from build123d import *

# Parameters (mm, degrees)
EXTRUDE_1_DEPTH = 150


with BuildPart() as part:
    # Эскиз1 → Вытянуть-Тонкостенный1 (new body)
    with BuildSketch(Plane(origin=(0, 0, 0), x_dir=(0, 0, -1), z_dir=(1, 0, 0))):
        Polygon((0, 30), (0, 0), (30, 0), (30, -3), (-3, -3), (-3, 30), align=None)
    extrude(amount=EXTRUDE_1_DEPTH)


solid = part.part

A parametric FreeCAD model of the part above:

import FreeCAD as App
import Part
import Sketcher
from FreeCAD import Vector
Q = App.Units.Quantity


def add_polygon(sketch, points):
    """Adds a closed chain of lines whose ends are joined by coincident constraints."""
    first, n = sketch.GeometryCount, len(points)
    for a, b in zip(points, points[1:] + points[:1]):
        sketch.addGeometry(Part.LineSegment(App.Vector(*a, 0), App.Vector(*b, 0)), False)
    for i in range(n):
        sketch.addConstraint(Sketcher.Constraint("Coincident", first + i, 2, first + (i + 1) % n, 1))

doc = App.newDocument("Part")
body = doc.addObject("PartDesign::Body", "Body")

sketch1 = body.newObject("Sketcher::SketchObject", "Sketch")
sketch1.AttachmentSupport = (doc.getObject("YZ_Plane"), [""])
sketch1.MapMode = "FlatFace"
add_polygon(sketch1, [(0, 0), (30, 0), (30, 3), (-3, 3), (-3, -30), (0, -30)])
sketch1.addConstraint(Sketcher.Constraint("Horizontal", 0))
sketch1.addConstraint(Sketcher.Constraint("Vertical", 1))
sketch1.addConstraint(Sketcher.Constraint("Horizontal", 2))
sketch1.addConstraint(Sketcher.Constraint("Vertical", 3))
sketch1.addConstraint(Sketcher.Constraint("Horizontal", 4))
sketch1.addConstraint(Sketcher.Constraint("Vertical", 5))
sketch1.addConstraint(Sketcher.Constraint("Coincident", 5, 2, -1, 1))
sketch1.addConstraint(Sketcher.Constraint("Equal", 4, 1))
sketch1.addConstraint(Sketcher.Constraint("Equal", 2, 3))
sketch1.addConstraint(Sketcher.Constraint("DistanceX", 0, 1, 0, 2, Q("30 mm")))
sketch1.addConstraint(Sketcher.Constraint("DistanceX", 2, 2, 2, 1, Q("33 mm")))
pad1 = body.newObject("PartDesign::Pad", "Pad")
pad1.Profile = sketch1
pad1.Length = 150

doc.recompute()
